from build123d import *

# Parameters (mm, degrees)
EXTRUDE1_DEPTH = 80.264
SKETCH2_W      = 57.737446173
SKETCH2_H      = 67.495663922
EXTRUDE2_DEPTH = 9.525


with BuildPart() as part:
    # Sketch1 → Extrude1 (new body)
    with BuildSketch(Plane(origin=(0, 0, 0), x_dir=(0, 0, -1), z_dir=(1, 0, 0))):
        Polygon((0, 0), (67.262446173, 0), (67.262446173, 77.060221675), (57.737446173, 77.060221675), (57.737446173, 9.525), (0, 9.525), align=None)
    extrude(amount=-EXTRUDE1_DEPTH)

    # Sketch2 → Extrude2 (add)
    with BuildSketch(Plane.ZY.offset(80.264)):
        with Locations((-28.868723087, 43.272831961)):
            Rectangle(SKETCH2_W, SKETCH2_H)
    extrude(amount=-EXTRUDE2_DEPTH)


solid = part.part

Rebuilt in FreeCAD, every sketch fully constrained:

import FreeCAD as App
import Part
import Sketcher
from FreeCAD import Vector
Q = App.Units.Quantity


def add_polygon(sketch, points):
    """Adds a closed chain of lines whose ends are joined by coincident constraints."""
    first, n = sketch.GeometryCount, len(points)
    for a, b in zip(points, points[1:] + points[:1]):
        sketch.addGeometry(Part.LineSegment(App.Vector(*a, 0), App.Vector(*b, 0)), False)
    for i in range(n):
        sketch.addConstraint(Sketcher.Constraint("Coincident", first + i, 2, first + (i + 1) % n, 1))

doc = App.newDocument("Part")
body = doc.addObject("PartDesign::Body", "Body")

sketch1 = body.newObject("Sketcher::SketchObject", "Sketch")
sketch1.AttachmentSupport = (doc.getObject("YZ_Plane"), [""])
sketch1.MapMode = "FlatFace"
add_polygon(sketch1, [(0, 0), (0, -67), (77, -67), (77, -58), (10, -58), (10, 0)])
sketch1.addConstraint(Sketcher.Constraint("Vertical", 0))
sketch1.addConstraint(Sketcher.Constraint("Horizontal", 1))
sketch1.addConstraint(Sketcher.Constraint("Vertical", 2))
sketch1.addConstraint(Sketcher.Constraint("Horizontal", 3))
sketch1.addConstraint(Sketcher.Constraint("Vertical", 4))
sketch1.addConstraint(Sketcher.Constraint("Horizontal", 5))
sketch1.addConstraint(Sketcher.Constraint("Coincident", 5, 2, -1, 1))
sketch1.addConstraint(Sketcher.Constraint("Equal", 5, 2))
sketch1.addConstraint(Sketcher.Constraint("DistanceX", 5, 2, 5, 1, Q("0.375 in")))
sketch1.addConstraint(Sketcher.Constraint("DistanceX", 1, 1, 1, 2, Q("77.060222 mm")))
sketch1.addConstraint(Sketcher.Constraint("DistanceY", 0, 2, 0, 1, Q("67.262446 mm")))
pad1 = body.newObject("PartDesign::Pad", "Pad")
pad1.Profile = sketch1
pad1.Length = Q("3.16 in")
pad1.Reversed = True

sketch2 = body.newObject("Sketcher::SketchObject", "Sketch001")
sketch2.AttachmentSupport = (doc.getObject("YZ_Plane"), [""])
sketch2.MapMode = "FlatFace"
sketch2.AttachmentOffset = App.Placement(Vector(0, 0, -3.16 * 25.4), App.Rotation())
add_polygon(sketch2, [(77, -58), (10, -58), (10, 0), (77, 0)])
sketch2.addConstraint(Sketcher.Constraint("Horizontal", 0))
sketch2.addConstraint(Sketcher.Constraint("Vertical", 1))
sketch2.addConstraint(Sketcher.Constraint("Horizontal", 2))
sketch2.addConstraint(Sketcher.Constraint("Vertical", 3))
sketch2.addConstraint(Sketcher.Constraint("PointOnObject", 1, 2, -1))
sketch2.addConstraint(Sketcher.Constraint("DistanceX", -1, 1, 0, 2, Q("0.375 in")))
sketch2.addConstraint(Sketcher.Constraint("DistanceX", 0, 2, 0, 1, Q("67.495664 mm")))
sketch2.addConstraint(Sketcher.Constraint("DistanceY", 1, 1, 1, 2, Q("57.737446 mm")))
pad2 = body.newObject("PartDesign::Pad", "Pad001")
pad2.Profile = sketch2
pad2.Length = Q("0.375 in")

doc.recompute()
